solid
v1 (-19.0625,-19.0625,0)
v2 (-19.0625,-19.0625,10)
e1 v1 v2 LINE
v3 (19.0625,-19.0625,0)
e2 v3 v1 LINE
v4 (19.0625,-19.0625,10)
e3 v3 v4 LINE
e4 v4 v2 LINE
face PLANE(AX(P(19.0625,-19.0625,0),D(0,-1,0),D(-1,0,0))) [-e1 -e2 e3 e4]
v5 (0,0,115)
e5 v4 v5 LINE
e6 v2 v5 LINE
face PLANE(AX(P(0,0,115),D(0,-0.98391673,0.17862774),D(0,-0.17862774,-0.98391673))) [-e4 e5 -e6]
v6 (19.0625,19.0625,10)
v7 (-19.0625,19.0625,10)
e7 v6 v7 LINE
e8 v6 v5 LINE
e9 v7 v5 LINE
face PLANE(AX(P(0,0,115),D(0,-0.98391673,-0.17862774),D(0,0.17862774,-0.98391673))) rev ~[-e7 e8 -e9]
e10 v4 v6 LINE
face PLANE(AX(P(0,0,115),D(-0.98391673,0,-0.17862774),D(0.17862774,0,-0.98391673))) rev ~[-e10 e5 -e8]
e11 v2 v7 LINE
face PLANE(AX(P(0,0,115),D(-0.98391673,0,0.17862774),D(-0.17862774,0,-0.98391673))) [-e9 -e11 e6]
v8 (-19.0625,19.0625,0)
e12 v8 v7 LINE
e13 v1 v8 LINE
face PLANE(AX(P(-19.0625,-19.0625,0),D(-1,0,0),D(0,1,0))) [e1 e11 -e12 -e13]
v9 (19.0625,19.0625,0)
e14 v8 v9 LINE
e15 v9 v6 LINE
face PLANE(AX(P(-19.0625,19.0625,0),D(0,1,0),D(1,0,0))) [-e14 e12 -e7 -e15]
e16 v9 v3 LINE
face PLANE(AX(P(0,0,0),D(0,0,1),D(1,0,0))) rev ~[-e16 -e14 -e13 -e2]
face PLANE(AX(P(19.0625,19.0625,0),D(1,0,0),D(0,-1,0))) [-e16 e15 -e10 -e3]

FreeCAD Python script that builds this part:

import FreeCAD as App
import Part
import Sketcher

V = App.Vector
Q = App.Units.Quantity

doc = App.newDocument("Part")
body = doc.addObject("PartDesign::Body", "Body")

sketch1 = doc.addObject("Sketcher::SketchObject", "Sketch")
body.addObject(sketch1)
sketch1.AttachmentSupport = (doc.XY_Plane, [""])
sketch1.MapMode = "FlatFace"
sketch1.addGeometry(Part.LineSegment(V(19, 19, 0), V(-19, 19, 0)), False)
sketch1.addGeometry(Part.LineSegment(V(-19, 19, 0), V(-19, -19, 0)), False)
sketch1.addGeometry(Part.LineSegment(V(-19, -19, 0), V(19, -19, 0)), False)
sketch1.addGeometry(Part.LineSegment(V(19, -19, 0), V(19, 19, 0)), False)
sketch1.addConstraint(Sketcher.Constraint("Coincident", 0, 2, 1, 1))
sketch1.addConstraint(Sketcher.Constraint("Coincident", 1, 2, 2, 1))
sketch1.addConstraint(Sketcher.Constraint("Coincident", 2, 2, 3, 1))
sketch1.addConstraint(Sketcher.Constraint("Coincident", 3, 2, 0, 1))
sketch1.addConstraint(Sketcher.Constraint("Horizontal", 0))
sketch1.addConstraint(Sketcher.Constraint("Vertical", 1))
sketch1.addConstraint(Sketcher.Constraint("Horizontal", 2))
sketch1.addConstraint(Sketcher.Constraint("Vertical", 3))
sketch1.addConstraint(Sketcher.Constraint("Symmetric", 0, 2, 2, 2, -1, 1))
sketch1.addConstraint(Sketcher.Constraint("Equal", 2, 1))
sketch1.addConstraint(Sketcher.Constraint("DistanceX", 0, 2, 0, 1, Q("38.125 mm")))
pad1 = doc.addObject("PartDesign::Pad", "Pad")
body.addObject(pad1)
pad1.Profile = sketch1
pad1.Length = 115

sketch2 = doc.addObject("Sketcher::SketchObject", "Sketch001")
body.addObject(sketch2)
sketch2.AttachmentSupport = (doc.XZ_Plane, [""])
sketch2.MapMode = "FlatFace"
sketch2.addGeometry(Part.LineSegment(V(19, 115, 0), V(19, 10, 0)), False)
sketch2.addGeometry(Part.LineSegment(V(19, 10, 0), V(0, 115, 0)), False)
sketch2.addGeometry(Part.LineSegment(V(0, 115, 0), V(19, 115, 0)), False)
sketch2.addGeometry(Part.LineSegment(V(0, 115, 0), V(-19, 10, 0)), False)
sketch2.addGeometry(Part.LineSegment(V(-19, 10, 0), V(-19, 115, 0)), False)
sketch2.addGeometry(Part.LineSegment(V(-19, 115, 0), V(0, 115, 0)), False)
sketch2.addConstraint(Sketcher.Constraint("Coincident", 0, 2, 1, 1))
sketch2.addConstraint(Sketcher.Constraint("Coincident", 1, 2, 2, 1))
sketch2.addConstraint(Sketcher.Constraint("Coincident", 2, 2, 0, 1))
sketch2.addConstraint(Sketcher.Constraint("Coincident", 3, 2, 4, 1))
sketch2.addConstraint(Sketcher.Constraint("Coincident", 4, 2, 5, 1))
sketch2.addConstraint(Sketcher.Constraint("Coincident", 5, 2, 3, 1))
sketch2.addConstraint(Sketcher.Constraint("Vertical", 0))
sketch2.addConstraint(Sketcher.Constraint("Horizontal", 2))
sketch2.addConstraint(Sketcher.Constraint("Vertical", 4))
sketch2.addConstraint(Sketcher.Constraint("Horizontal", 5))
sketch2.addConstraint(Sketcher.Constraint("Coincident", 5, 2, 1, 2))
sketch2.addConstraint(Sketcher.Constraint("Symmetric", 0, 2, 3, 2, -2))
sketch2.addConstraint(Sketcher.Constraint("PointOnObject", 1, 2, -2))
sketch2.addConstraint(Sketcher.Constraint("DistanceY", -1, 1, 0, 2, Q("10 mm")))
sketch2.addConstraint(Sketcher.Constraint("DistanceY", 0, 2, 0, 1, Q("105 mm")))
sketch2.addConstraint(Sketcher.Constraint("Angle", 1, Q("100.2898 deg")))
pocket1 = doc.addObject("PartDesign::Pocket", "Pocket")
body.addObject(pocket1)
pocket1.Profile = sketch2
pocket1.Length = 38.125
pocket1.Midplane = True
doc.recompute()

polarpattern = doc.addObject("PartDesign::PolarPattern", "PolarPattern")
body.addObject(polarpattern)
polarpattern.Originals = [pocket1]
polarpattern.Axis = (doc.Z_Axis, [""])
polarpattern.Angle = 90
polarpattern.Occurrences = 2
body.Tip = polarpattern

doc.recompute()
